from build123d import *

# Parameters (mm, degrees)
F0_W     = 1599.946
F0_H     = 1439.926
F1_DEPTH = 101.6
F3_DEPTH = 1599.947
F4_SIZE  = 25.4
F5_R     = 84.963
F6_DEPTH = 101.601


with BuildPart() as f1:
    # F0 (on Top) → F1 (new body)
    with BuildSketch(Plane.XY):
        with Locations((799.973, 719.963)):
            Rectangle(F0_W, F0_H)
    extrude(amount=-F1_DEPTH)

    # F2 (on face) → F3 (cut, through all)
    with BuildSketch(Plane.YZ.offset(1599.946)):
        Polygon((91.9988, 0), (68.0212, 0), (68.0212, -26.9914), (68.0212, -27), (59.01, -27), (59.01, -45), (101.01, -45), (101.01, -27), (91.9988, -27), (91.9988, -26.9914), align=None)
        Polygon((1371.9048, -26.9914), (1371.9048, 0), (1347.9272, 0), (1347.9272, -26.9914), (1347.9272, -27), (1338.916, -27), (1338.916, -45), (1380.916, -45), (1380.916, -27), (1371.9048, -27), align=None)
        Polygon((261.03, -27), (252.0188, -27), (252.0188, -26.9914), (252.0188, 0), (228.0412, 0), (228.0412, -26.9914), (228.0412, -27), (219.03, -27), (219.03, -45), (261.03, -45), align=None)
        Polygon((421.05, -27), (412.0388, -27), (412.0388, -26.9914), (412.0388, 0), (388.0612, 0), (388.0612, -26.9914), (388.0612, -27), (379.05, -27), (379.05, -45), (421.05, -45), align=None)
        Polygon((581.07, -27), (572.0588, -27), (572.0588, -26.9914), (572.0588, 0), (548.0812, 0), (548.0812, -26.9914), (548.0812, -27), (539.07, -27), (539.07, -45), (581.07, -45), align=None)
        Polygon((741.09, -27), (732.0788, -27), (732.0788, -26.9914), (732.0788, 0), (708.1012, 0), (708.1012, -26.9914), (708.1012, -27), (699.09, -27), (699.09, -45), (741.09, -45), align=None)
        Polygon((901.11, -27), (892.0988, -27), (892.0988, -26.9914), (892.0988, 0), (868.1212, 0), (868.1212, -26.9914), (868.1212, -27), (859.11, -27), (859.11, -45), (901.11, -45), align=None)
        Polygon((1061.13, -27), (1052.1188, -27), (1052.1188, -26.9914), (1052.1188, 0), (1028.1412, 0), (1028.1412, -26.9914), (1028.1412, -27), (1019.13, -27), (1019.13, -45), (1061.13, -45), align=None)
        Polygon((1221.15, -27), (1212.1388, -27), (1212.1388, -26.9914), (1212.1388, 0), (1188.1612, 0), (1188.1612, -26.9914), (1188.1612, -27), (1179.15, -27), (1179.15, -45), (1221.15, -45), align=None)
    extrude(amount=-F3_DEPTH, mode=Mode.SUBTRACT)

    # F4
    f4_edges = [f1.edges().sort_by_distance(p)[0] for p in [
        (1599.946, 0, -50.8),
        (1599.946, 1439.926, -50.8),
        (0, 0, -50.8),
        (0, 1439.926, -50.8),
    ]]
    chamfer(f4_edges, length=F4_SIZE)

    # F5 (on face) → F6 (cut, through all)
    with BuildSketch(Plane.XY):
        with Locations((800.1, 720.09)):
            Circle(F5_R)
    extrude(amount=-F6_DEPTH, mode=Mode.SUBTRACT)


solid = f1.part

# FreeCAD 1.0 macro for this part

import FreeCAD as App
import Part
import Sketcher
Q = App.Units.Quantity


def edges_at(feature, points):
    """Names of the edges that pass closest to the given points."""
    edges = feature.Shape.Edges
    near = lambda p: min(range(len(edges)), key=lambda i: edges[i].distToShape(Part.Vertex(*p))[0])
    return sorted({f"Edge{near(p) + 1}" for p in points})


def add_polygon(sketch, points):
    """Adds a closed chain of lines whose ends are joined by coincident constraints."""
    first, n = sketch.GeometryCount, len(points)
    for a, b in zip(points, points[1:] + points[:1]):
        sketch.addGeometry(Part.LineSegment(App.Vector(*a, 0), App.Vector(*b, 0)), False)
    for i in range(n):
        sketch.addConstraint(Sketcher.Constraint("Coincident", first + i, 2, first + (i + 1) % n, 1))

doc = App.newDocument("Part")
body = doc.addObject("PartDesign::Body", "Body")

# Sketch on XY plane
sketch1 = doc.addObject("Sketcher::SketchObject", "Sketch")
body.addObject(sketch1)
sketch1.AttachmentSupport = (doc.XY_Plane, [""])
sketch1.MapMode = "FlatFace"
add_polygon(sketch1, [(0, 1440), (0, 0), (1600, 0), (1600, 1440)])  # lines 0-3
sketch1.addConstraint([
    Sketcher.Constraint("Vertical", 0),
    Sketcher.Constraint("Horizontal", 1),
    Sketcher.Constraint("Vertical", 2),
    Sketcher.Constraint("Horizontal", 3),
    Sketcher.Constraint("Coincident", 0, 2, -1, 1),
    Sketcher.Constraint("DistanceX", 1, 1, 1, 2, Q("62.99 in")),
    Sketcher.Constraint("DistanceY", 0, 2, 0, 1, Q("56.69 in")),
])
pad1 = doc.addObject("PartDesign::Pad", "Pad")
body.addObject(pad1)
pad1.Profile = sketch1
pad1.Length = Q("4 in")
pad1.Reversed = True

# Sketch on YZ plane
sketch2 = doc.addObject("Sketcher::SketchObject", "Sketch001")
body.addObject(sketch2)
sketch2.AttachmentSupport = (doc.YZ_Plane, [""])
sketch2.MapMode = "FlatFace"
sketch2.AttachmentOffset = App.Placement(App.Vector(0, 0, 62.99 * 25.4), App.Rotation())
add_polygon(sketch2, [(92, 0), (68, 0), (68, -27), (59, -27), (59, -45), (101, -45), (101, -27), (92, -27)])  # lines 0-7
add_polygon(sketch2, [(1372, 0), (1348, 0), (1348, -27), (1339, -27), (1339, -45), (1381, -45), (1381, -27), (1372, -27)])  # lines 8-15
add_polygon(sketch2, [(261, -27), (252, -27), (252, 0), (228, 0), (228, -27), (219, -27), (219, -45), (261, -45)])  # lines 16-23
add_polygon(sketch2, [(421, -27), (412, -27), (412, 0), (388, 0), (388, -27), (379, -27), (379, -45), (421, -45)])  # lines 24-31
add_polygon(sketch2, [(581, -27), (572, -27), (572, 0), (548, 0), (548, -27), (539, -27), (539, -45), (581, -45)])  # lines 32-39
add_polygon(sketch2, [(741, -27), (732, -27), (732, 0), (708, 0), (708, -27), (699, -27), (699, -45), (741, -45)])  # lines 40-47
add_polygon(sketch2, [(901, -27), (892, -27), (892, 0), (868, 0), (868, -27), (859, -27), (859, -45), (901, -45)])  # lines 48-55
add_polygon(sketch2, [(1061, -27), (1052, -27), (1052, 0), (1028, 0), (1028, -27), (1019, -27), (1019, -45), (1061, -45)])  # lines 56-63
add_polygon(sketch2, [(1221, -27), (1212, -27), (1212, 0), (1188, 0), (1188, -27), (1179, -27), (1179, -45), (1221, -45)])  # lines 64-71
sketch2.addConstraint([
    Sketcher.Constraint("Horizontal", 0),
    Sketcher.Constraint("Vertical", 1),
    Sketcher.Constraint("Horizontal", 2),
    Sketcher.Constraint("Vertical", 3),
    Sketcher.Constraint("Horizontal", 4),
    Sketcher.Constraint("Vertical", 5),
    Sketcher.Constraint("Horizontal", 6),
    Sketcher.Constraint("Vertical", 7),
    Sketcher.Constraint("Horizontal", 8),
    Sketcher.Constraint("Vertical", 9),
    Sketcher.Constraint("Horizontal", 10),
    Sketcher.Constraint("Vertical", 11),
    Sketcher.Constraint("Horizontal", 12),
    Sketcher.Constraint("Vertical", 13),
    Sketcher.Constraint("Horizontal", 14),
    Sketcher.Constraint("Vertical", 15),
    Sketcher.Constraint("Horizontal", 16),
    Sketcher.Constraint("Vertical", 17),
    Sketcher.Constraint("Horizontal", 18),
    Sketcher.Constraint("Vertical", 19),
    Sketcher.Constraint("Horizontal", 20),
    Sketcher.Constraint("Vertical", 21),
    Sketcher.Constraint("Horizontal", 22),
    Sketcher.Constraint("Vertical", 23),
    Sketcher.Constraint("Horizontal", 24),
    Sketcher.Constraint("Vertical", 25),
    Sketcher.Constraint("Horizontal", 26),
    Sketcher.Constraint("Vertical", 27),
    Sketcher.Constraint("Horizontal", 28),
    Sketcher.Constraint("Vertical", 29),
    Sketcher.Constraint("Horizontal", 30),
    Sketcher.Constraint("Vertical", 31),
    Sketcher.Constraint("Horizontal", 32),
    Sketcher.Constraint("Vertical", 33),
    Sketcher.Constraint("Horizontal", 34),
    Sketcher.Constraint("Vertical", 35),
    Sketcher.Constraint("Horizontal", 36),
    Sketcher.Constraint("Vertical", 37),
    Sketcher.Constraint("Horizontal", 38),
    Sketcher.Constraint("Vertical", 39),
    Sketcher.Constraint("Horizontal", 40),
    Sketcher.Constraint("Vertical", 41),
    Sketcher.Constraint("Horizontal", 42),
    Sketcher.Constraint("Vertical", 43),
    Sketcher.Constraint("Horizontal", 44),
    Sketcher.Constraint("Vertical", 45),
    Sketcher.Constraint("Horizontal", 46),
    Sketcher.Constraint("Vertical", 47),
    Sketcher.Constraint("Horizontal", 48),
    Sketcher.Constraint("Vertical", 49),
    Sketcher.Constraint("Horizontal", 50),
    Sketcher.Constraint("Vertical", 51),
    Sketcher.Constraint("Horizontal", 52),
    Sketcher.Constraint("Vertical", 53),
    Sketcher.Constraint("Horizontal", 54),
    Sketcher.Constraint("Vertical", 55),
    Sketcher.Constraint("Horizontal", 56),
    Sketcher.Constraint("Vertical", 57),
    Sketcher.Constraint("Horizontal", 58),
    Sketcher.Constraint("Vertical", 59),
    Sketcher.Constraint("Horizontal", 60),
    Sketcher.Constraint("Vertical", 61),
    Sketcher.Constraint("Horizontal", 62),
    Sketcher.Constraint("Vertical", 63),
    Sketcher.Constraint("Horizontal", 64),
    Sketcher.Constraint("Vertical", 65),
    Sketcher.Constraint("Horizontal", 66),
    Sketcher.Constraint("Vertical", 67),
    Sketcher.Constraint("Horizontal", 68),
    Sketcher.Constraint("Vertical", 69),
    Sketcher.Constraint("Horizontal", 70),
    Sketcher.Constraint("Vertical", 71),
    Sketcher.Constraint("PointOnObject", 0, 2, -1),
    Sketcher.Constraint("PointOnObject", 8, 2, -1),
    Sketcher.Constraint("PointOnObject", 17, 2, -1),
    Sketcher.Constraint("PointOnObject", 25, 2, -1),
    Sketcher.Constraint("PointOnObject", 33, 2, -1),
    Sketcher.Constraint("PointOnObject", 41, 2, -1),
    Sketcher.Constraint("PointOnObject", 49, 2, -1),
    Sketcher.Constraint("PointOnObject", 57, 2, -1),
    Sketcher.Constraint("PointOnObject", 65, 2, -1),
    Sketcher.Constraint("Horizontal", 2, 2, 5, 2),
    Sketcher.Constraint("Horizontal", 6, 2, 9, 2),
    Sketcher.Constraint("Horizontal", 4, 2, 11, 2),
    Sketcher.Constraint("Horizontal", 10, 2, 13, 2),
    Sketcher.Constraint("Horizontal", 14, 2, 16, 2),
    Sketcher.Constraint("Horizontal", 16, 2, 19, 2),
    Sketcher.Constraint("Horizontal", 12, 2, 21, 2),
    Sketcher.Constraint("Horizontal", 23, 2, 24, 2),
    Sketcher.Constraint("Horizontal", 24, 2, 27, 2),
    Sketcher.Constraint("Horizontal", 22, 2, 29, 2),
    Sketcher.Constraint("Horizontal", 31, 2, 32, 2),
    Sketcher.Constraint("Horizontal", 32, 2, 35, 2),
    Sketcher.Constraint("Horizontal", 30, 2, 37, 2),
    Sketcher.Constraint("Horizontal", 39, 2, 40, 2),
    Sketcher.Constraint("Horizontal", 40, 2, 43, 2),
    Sketcher.Constraint("Horizontal", 38, 2, 45, 2),
    Sketcher.Constraint("Horizontal", 47, 2, 48, 2),
    Sketcher.Constraint("Horizontal", 48, 2, 51, 2),
    Sketcher.Constraint("Horizontal", 46, 2, 53, 2),
    Sketcher.Constraint("Horizontal", 55, 2, 56, 2),
    Sketcher.Constraint("Horizontal", 56, 2, 59, 2),
    Sketcher.Constraint("Horizontal", 54, 2, 61, 2),
    Sketcher.Constraint("Horizontal", 63, 2, 64, 2),
    Sketcher.Constraint("Horizontal", 64, 2, 67, 2),
    Sketcher.Constraint("Horizontal", 62, 2, 69, 2),
    Sketcher.Constraint("Equal", 2, 6),
    Sketcher.Constraint("Equal", 0, 8),
    Sketcher.Constraint("Equal", 6, 10),
    Sketcher.Constraint("Equal", 4, 12),
    Sketcher.Constraint("Equal", 14, 16),
    Sketcher.Constraint("Equal", 8, 18),
    Sketcher.Constraint("Equal", 16, 20),
    Sketcher.Constraint("Equal", 20, 24),
    Sketcher.Constraint("Equal", 18, 26),
    Sketcher.Constraint("Equal", 24, 28),
    Sketcher.Constraint("Equal", 28, 32),
    Sketcher.Constraint("Equal", 26, 34),
    Sketcher.Constraint("Equal", 32, 36),
    Sketcher.Constraint("Equal", 36, 40),
    Sketcher.Constraint("Equal", 34, 42),
    Sketcher.Constraint("Equal", 40, 44),
    Sketcher.Constraint("Equal", 44, 48),
    Sketcher.Constraint("Equal", 42, 50),
    Sketcher.Constraint("Equal", 48, 52),
    Sketcher.Constraint("Equal", 52, 56),
    Sketcher.Constraint("Equal", 50, 58),
    Sketcher.Constraint("Equal", 56, 60),
    Sketcher.Constraint("Equal", 60, 64),
    Sketcher.Constraint("Equal", 58, 66),
    Sketcher.Constraint("Equal", 64, 68),
    Sketcher.Constraint("DistanceX", 0, 2, 0, 1, Q("0.944 in")),
    Sketcher.Constraint("DistanceX", -1, 1, 0, 2, Q("2.678 in")),
    Sketcher.Constraint("DistanceX", -1, 1, 8, 2, Q("53.068 in")),
    Sketcher.Constraint("DistanceX", -1, 1, 16, 2, Q("9.922 in")),
    Sketcher.Constraint("DistanceX", -1, 1, 24, 2, Q("16.222 in")),
    Sketcher.Constraint("DistanceX", -1, 1, 32, 2, Q("22.522 in")),
    Sketcher.Constraint("DistanceX", -1, 1, 40, 2, Q("28.822 in")),
    Sketcher.Constraint("DistanceX", -1, 1, 48, 2, Q("35.122 in")),
    Sketcher.Constraint("DistanceX", -1, 1, 56, 2, Q("41.422 in")),
    Sketcher.Constraint("DistanceX", -1, 1, 64, 2, Q("47.722 in")),
    Sketcher.Constraint("DistanceX", 2, 2, 2, 1, Q("9.0112 mm")),
    Sketcher.Constraint("DistanceY", 1, 2, 1, 1, Q("27 mm")),
    Sketcher.Constraint("DistanceY", 3, 2, 3, 1, Q("18 mm")),
])
pocket1 = doc.addObject("PartDesign::Pocket", "Pocket")
body.addObject(pocket1)
pocket1.Profile = sketch2
pocket1.Type = "ThroughAll"
doc.recompute()

chamfer = doc.addObject("PartDesign::Chamfer", "Chamfer")
body.addObject(chamfer)
chamfer.Base = (pocket1, edges_at(pocket1, [
    (1599.946, 0, -50.8),
    (1599.946, 1439.926, -50.8),
    (0, 0, -50.8),
    (0, 1439.926, -50.8),
]))
chamfer.Size = Q("1 in")

# Sketch on XY plane
sketch3 = doc.addObject("Sketcher::SketchObject", "Sketch002")
body.addObject(sketch3)
sketch3.AttachmentSupport = (doc.XY_Plane, [""])
sketch3.MapMode = "FlatFace"
sketch3.addGeometry(Part.Circle(App.Vector(800, 720, 0), App.Vector(0, 0, 1), 85), False)
sketch3.addConstraint([
    Sketcher.Constraint("Diameter", 0, Q("6.69 in")),
    Sketcher.Constraint("DistanceX", -1, 1, 0, 3, Q("31.5 in")),
    Sketcher.Constraint("DistanceY", -1, 1, 0, 3, Q("28.35 in")),
])
pocket2 = doc.addObject("PartDesign::Pocket", "Pocket001")
body.addObject(pocket2)
pocket2.Profile = sketch3
pocket2.Type = "ThroughAll"

doc.recompute()
